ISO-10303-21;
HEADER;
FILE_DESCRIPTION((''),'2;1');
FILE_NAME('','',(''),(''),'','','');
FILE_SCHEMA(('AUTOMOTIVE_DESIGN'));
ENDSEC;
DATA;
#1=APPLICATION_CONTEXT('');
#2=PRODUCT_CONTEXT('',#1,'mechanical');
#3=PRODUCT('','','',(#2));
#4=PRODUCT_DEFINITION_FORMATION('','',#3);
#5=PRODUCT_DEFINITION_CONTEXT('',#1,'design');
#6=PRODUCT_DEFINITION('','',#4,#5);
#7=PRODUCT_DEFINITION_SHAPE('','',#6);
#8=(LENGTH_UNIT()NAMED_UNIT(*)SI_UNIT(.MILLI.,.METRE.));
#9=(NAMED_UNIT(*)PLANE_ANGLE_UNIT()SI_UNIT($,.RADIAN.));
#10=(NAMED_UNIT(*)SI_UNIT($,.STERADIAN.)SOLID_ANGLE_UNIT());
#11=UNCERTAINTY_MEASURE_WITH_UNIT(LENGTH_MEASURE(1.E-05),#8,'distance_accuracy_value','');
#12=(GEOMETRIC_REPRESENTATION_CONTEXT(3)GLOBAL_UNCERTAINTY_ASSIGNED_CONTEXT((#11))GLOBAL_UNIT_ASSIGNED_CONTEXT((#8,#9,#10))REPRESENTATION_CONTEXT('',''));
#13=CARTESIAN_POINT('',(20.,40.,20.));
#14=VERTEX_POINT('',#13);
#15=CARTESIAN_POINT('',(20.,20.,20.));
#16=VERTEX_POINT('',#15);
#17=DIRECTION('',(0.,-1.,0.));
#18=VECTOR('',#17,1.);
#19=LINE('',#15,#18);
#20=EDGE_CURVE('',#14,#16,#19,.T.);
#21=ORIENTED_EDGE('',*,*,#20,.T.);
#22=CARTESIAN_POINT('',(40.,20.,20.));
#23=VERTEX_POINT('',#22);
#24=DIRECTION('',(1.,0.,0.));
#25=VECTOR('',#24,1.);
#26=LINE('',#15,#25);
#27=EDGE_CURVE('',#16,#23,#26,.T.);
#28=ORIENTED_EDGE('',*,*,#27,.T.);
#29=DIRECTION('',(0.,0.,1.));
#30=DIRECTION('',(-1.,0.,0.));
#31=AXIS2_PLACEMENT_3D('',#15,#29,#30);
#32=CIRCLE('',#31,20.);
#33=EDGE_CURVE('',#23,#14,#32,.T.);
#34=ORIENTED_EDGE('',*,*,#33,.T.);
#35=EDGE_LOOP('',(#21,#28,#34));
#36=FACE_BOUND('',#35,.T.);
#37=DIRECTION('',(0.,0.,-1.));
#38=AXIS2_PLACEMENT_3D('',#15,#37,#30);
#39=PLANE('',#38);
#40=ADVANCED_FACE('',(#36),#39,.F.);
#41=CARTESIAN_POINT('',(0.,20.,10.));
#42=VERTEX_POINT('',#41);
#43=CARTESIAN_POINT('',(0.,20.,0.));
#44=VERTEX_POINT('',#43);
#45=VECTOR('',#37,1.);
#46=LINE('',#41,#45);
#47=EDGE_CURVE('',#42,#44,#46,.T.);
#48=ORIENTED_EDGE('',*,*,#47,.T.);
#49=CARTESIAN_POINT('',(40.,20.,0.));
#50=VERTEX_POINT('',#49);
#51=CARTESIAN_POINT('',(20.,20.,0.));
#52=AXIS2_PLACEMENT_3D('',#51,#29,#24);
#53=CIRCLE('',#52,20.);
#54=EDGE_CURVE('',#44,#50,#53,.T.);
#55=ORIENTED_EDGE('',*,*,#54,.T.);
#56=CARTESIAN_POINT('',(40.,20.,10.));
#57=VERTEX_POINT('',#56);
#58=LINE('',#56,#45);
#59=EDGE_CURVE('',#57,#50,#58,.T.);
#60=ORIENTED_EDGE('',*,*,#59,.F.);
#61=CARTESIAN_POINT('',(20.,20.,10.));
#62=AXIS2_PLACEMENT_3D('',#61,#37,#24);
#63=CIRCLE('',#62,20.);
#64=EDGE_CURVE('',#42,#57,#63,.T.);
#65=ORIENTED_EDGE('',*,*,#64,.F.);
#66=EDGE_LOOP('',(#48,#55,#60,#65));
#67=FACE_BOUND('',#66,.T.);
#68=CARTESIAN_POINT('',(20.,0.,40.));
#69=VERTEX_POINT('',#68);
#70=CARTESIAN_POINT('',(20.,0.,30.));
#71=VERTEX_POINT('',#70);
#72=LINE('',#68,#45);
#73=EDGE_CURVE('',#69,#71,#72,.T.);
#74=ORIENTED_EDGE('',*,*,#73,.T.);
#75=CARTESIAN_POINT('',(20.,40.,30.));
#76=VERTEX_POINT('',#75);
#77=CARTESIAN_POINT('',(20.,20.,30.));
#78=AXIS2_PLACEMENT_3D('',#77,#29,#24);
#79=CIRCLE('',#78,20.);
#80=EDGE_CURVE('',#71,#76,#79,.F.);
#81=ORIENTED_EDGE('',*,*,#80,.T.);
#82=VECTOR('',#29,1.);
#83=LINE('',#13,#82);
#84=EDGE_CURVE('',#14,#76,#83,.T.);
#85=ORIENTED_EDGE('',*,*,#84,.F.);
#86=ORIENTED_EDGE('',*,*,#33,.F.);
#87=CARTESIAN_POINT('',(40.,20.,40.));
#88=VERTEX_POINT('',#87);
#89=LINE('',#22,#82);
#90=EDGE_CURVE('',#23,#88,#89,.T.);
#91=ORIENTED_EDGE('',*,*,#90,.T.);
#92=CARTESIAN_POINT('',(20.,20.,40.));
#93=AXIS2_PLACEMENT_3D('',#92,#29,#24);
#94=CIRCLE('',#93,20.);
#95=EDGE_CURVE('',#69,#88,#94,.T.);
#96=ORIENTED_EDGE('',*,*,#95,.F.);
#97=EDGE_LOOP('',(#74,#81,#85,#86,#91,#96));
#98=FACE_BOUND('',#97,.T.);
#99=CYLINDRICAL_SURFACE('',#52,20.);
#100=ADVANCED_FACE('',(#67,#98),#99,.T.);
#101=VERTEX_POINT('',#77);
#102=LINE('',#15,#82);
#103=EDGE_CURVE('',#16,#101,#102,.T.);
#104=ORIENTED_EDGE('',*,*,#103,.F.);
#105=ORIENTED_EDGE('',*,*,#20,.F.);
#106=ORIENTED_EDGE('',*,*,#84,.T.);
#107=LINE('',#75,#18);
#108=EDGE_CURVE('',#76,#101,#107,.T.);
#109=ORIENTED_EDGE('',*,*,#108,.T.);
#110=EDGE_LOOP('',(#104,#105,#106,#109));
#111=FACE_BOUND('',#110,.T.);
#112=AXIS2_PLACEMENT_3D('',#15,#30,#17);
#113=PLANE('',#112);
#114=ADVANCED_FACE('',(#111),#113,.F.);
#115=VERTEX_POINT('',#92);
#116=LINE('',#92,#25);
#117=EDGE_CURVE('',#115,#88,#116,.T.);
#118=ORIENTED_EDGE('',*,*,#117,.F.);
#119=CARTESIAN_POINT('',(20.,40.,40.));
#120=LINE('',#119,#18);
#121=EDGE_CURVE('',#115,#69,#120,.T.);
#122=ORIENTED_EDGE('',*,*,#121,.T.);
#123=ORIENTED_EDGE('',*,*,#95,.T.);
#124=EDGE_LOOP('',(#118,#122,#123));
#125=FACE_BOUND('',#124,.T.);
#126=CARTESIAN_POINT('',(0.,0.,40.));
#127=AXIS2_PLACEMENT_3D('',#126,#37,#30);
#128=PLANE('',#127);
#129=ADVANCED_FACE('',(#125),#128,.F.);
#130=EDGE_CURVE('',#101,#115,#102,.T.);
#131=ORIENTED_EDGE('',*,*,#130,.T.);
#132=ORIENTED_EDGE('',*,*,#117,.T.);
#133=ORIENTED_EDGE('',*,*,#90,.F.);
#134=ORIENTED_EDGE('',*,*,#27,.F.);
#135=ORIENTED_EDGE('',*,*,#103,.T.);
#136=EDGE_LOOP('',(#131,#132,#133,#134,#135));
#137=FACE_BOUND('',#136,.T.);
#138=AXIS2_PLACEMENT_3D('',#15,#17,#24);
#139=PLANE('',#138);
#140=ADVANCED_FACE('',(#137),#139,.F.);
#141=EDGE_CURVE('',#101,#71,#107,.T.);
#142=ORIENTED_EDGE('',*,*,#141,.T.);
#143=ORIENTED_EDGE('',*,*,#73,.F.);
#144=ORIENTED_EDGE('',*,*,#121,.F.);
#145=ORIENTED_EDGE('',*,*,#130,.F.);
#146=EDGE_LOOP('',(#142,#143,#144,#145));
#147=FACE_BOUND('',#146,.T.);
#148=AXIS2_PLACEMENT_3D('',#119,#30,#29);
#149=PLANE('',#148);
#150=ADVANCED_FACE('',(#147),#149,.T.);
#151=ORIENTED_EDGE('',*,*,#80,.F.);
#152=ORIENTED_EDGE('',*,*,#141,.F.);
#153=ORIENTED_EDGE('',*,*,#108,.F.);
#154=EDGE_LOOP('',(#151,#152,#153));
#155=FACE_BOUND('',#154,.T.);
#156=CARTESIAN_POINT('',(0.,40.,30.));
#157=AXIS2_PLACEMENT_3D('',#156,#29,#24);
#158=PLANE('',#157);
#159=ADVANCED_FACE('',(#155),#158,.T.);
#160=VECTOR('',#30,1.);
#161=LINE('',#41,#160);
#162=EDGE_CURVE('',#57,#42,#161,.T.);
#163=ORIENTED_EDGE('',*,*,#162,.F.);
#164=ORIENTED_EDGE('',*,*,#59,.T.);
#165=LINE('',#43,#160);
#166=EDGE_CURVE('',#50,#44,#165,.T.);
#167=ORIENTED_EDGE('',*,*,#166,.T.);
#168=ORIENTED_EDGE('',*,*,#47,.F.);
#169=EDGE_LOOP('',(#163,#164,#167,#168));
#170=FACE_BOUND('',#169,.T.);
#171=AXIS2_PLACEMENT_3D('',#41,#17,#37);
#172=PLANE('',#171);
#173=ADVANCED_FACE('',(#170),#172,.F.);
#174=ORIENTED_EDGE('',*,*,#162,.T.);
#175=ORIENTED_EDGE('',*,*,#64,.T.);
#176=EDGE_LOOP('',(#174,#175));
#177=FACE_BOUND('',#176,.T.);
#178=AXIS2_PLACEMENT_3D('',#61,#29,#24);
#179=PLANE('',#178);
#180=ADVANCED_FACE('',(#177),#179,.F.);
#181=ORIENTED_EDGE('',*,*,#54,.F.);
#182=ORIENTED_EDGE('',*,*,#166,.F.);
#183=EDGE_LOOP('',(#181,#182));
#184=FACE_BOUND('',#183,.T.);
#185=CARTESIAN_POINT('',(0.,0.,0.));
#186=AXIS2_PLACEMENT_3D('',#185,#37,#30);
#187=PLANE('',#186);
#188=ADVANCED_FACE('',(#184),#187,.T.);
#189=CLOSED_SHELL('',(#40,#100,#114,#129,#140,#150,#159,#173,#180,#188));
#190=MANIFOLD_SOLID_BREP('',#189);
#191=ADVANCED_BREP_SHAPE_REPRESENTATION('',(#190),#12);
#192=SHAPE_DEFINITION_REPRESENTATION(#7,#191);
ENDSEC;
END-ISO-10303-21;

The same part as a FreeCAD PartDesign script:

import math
import FreeCAD as App
import Part
import Sketcher
from FreeCAD import Vector

doc = App.newDocument("Part")
params = doc.addObject("Spreadsheet::Sheet", "Params")
for row, (alias, value) in enumerate([
    ("sketch1_width", "40 mm"),
    ("pad1_length", "40 mm"),
    ("sketch2_radius", "20 mm"),
    ("pocket1_length", "40 mm"),
    ("sketch3_width", "20 mm"),
    ("sketch3_height", "10 mm"),
    ("pocket2_length", "40 mm"),
    ("sketch4_radius", "20 mm"),
    ("pocket3_length", "20 mm"),
    ("sketch5_radius", "20 mm"),
    ("pocket4_length", "10 mm"),
], start=1):
    params.set(f"A{row}", alias)
    params.set(f"B{row}", "=" + value)
    params.setAlias(f"B{row}", alias)

body = doc.addObject("PartDesign::Body", "Body")

sketch1 = doc.addObject("Sketcher::SketchObject", "Sketch")
body.addObject(sketch1)
sketch1.AttachmentSupport = (doc.XY_Plane, [""])
sketch1.MapMode = "FlatFace"
sketch1.addGeometry(Part.LineSegment(Vector(0, 40, 0), Vector(0, 0, 0)), False)
sketch1.addGeometry(Part.LineSegment(Vector(0, 0, 0), Vector(40, 0, 0)), False)
sketch1.addGeometry(Part.LineSegment(Vector(40, 0, 0), Vector(40, 40, 0)), False)
sketch1.addGeometry(Part.LineSegment(Vector(40, 40, 0), Vector(0, 40, 0)), False)
sketch1.addConstraint(Sketcher.Constraint("Coincident", 0, 2, 1, 1))
sketch1.addConstraint(Sketcher.Constraint("Coincident", 1, 2, 2, 1))
sketch1.addConstraint(Sketcher.Constraint("Coincident", 2, 2, 3, 1))
sketch1.addConstraint(Sketcher.Constraint("Coincident", 3, 2, 0, 1))
sketch1.addConstraint(Sketcher.Constraint("Vertical", 0))
sketch1.addConstraint(Sketcher.Constraint("Horizontal", 1))
sketch1.addConstraint(Sketcher.Constraint("Vertical", 2))
sketch1.addConstraint(Sketcher.Constraint("Horizontal", 3))
sketch1.addConstraint(Sketcher.Constraint("Coincident", 0, 2, -1, 1))
sketch1.addConstraint(Sketcher.Constraint("Equal", 3, 0))
sketch1.addConstraint(Sketcher.Constraint("DistanceX", 1, 1, 1, 2, 40.0))
sketch1.setExpression("Constraints[10]", "Params.sketch1_width")
pad1 = doc.addObject("PartDesign::Pad", "Pad")
body.addObject(pad1)
pad1.Profile = sketch1
pad1.setExpression("Length", "Params.pad1_length")

sketch2 = doc.addObject("Sketcher::SketchObject", "Sketch001")
body.addObject(sketch2)
sketch2.AttachmentSupport = (doc.XY_Plane, [""])
sketch2.MapMode = "FlatFace"
sketch2.AttachmentOffset = App.Placement(Vector(0, 0, 40), App.Rotation())
sketch2.addGeometry(Part.LineSegment(Vector(20, 40, 0), Vector(0, 40, 0)), False)
sketch2.addGeometry(Part.LineSegment(Vector(0, 40, 0), Vector(0, 20, 0)), False)
sketch2.addGeometry(Part.ArcOfCircle(Part.Circle(Vector(20, 20, 0), Vector(0, 0, 1), 20), math.radians(90), math.radians(180)), False)
sketch2.addGeometry(Part.ArcOfCircle(Part.Circle(Vector(20, 20, 0), Vector(0, 0, 1), 20), math.radians(180), math.radians(270)), False)
sketch2.addGeometry(Part.LineSegment(Vector(0, 20, 0), Vector(0, 0, 0)), False)
sketch2.addGeometry(Part.LineSegment(Vector(0, 0, 0), Vector(20, 0, 0)), False)
sketch2.addGeometry(Part.LineSegment(Vector(40, 0, 0), Vector(40, 20, 0)), False)
sketch2.addGeometry(Part.ArcOfCircle(Part.Circle(Vector(20, 20, 0), Vector(0, 0, 1), 20), math.radians(-90), math.radians(0)), False)
sketch2.addGeometry(Part.LineSegment(Vector(20, 0, 0), Vector(40, 0, 0)), False)
sketch2.addGeometry(Part.LineSegment(Vector(40, 40, 0), Vector(20, 40, 0)), False)
sketch2.addGeometry(Part.ArcOfCircle(Part.Circle(Vector(20, 20, 0), Vector(0, 0, 1), 20), math.radians(0), math.radians(90)), False)
sketch2.addGeometry(Part.LineSegment(Vector(40, 20, 0), Vector(40, 40, 0)), False)
sketch2.addConstraint(Sketcher.Constraint("Coincident", 0, 2, 1, 1))
sketch2.addConstraint(Sketcher.Constraint("Tangent", 1, 2, 2, 2))
sketch2.addConstraint(Sketcher.Constraint("Tangent", 2, 1, 0, 1))
sketch2.addConstraint(Sketcher.Constraint("Tangent", 3, 1, 4, 1))
sketch2.addConstraint(Sketcher.Constraint("Coincident", 4, 2, 5, 1))
sketch2.addConstraint(Sketcher.Constraint("Tangent", 5, 2, 3, 2))
sketch2.addConstraint(Sketcher.Constraint("Tangent", 6, 2, 7, 2))
sketch2.addConstraint(Sketcher.Constraint("Tangent", 7, 1, 8, 1))
sketch2.addConstraint(Sketcher.Constraint("Coincident", 8, 2, 6, 1))
sketch2.addConstraint(Sketcher.Constraint("Tangent", 9, 2, 10, 2))
sketch2.addConstraint(Sketcher.Constraint("Tangent", 10, 1, 11, 1))
sketch2.addConstraint(Sketcher.Constraint("Coincident", 11, 2, 9, 1))
sketch2.addConstraint(Sketcher.Constraint("Horizontal", 0))
sketch2.addConstraint(Sketcher.Constraint("Vertical", 1))
sketch2.addConstraint(Sketcher.Constraint("Vertical", 4))
sketch2.addConstraint(Sketcher.Constraint("Horizontal", 5))
sketch2.addConstraint(Sketcher.Constraint("Vertical", 6))
sketch2.addConstraint(Sketcher.Constraint("Horizontal", 8))
sketch2.addConstraint(Sketcher.Constraint("Horizontal", 9))
sketch2.addConstraint(Sketcher.Constraint("Vertical", 11))
sketch2.addConstraint(Sketcher.Constraint("Coincident", 4, 2, -1, 1))
sketch2.addConstraint(Sketcher.Constraint("Coincident", 3, 3, 2, 3))
sketch2.addConstraint(Sketcher.Constraint("Coincident", 7, 3, 2, 3))
sketch2.addConstraint(Sketcher.Constraint("Coincident", 10, 3, 2, 3))
sketch2.addConstraint(Sketcher.Constraint("Equal", 2, 3))
sketch2.addConstraint(Sketcher.Constraint("Equal", 3, 7))
sketch2.addConstraint(Sketcher.Constraint("Equal", 7, 10))
sketch2.addConstraint(Sketcher.Constraint("Radius", 2, 20.0))
sketch2.setExpression("Constraints[27]", "Params.sketch2_radius")
pocket1 = doc.addObject("PartDesign::Pocket", "Pocket")
body.addObject(pocket1)
pocket1.Profile = sketch2
pocket1.setExpression("Length", "Params.pocket1_length")

sketch3 = doc.addObject("Sketcher::SketchObject", "Sketch002")
body.addObject(sketch3)
sketch3.AttachmentSupport = (doc.XZ_Plane, [""])
sketch3.MapMode = "FlatFace"
sketch3.addGeometry(Part.LineSegment(Vector(0, 30, 0), Vector(0, 40, 0)), False)
sketch3.addGeometry(Part.LineSegment(Vector(0, 40, 0), Vector(20, 40, 0)), False)
sketch3.addGeometry(Part.LineSegment(Vector(20, 40, 0), Vector(20, 30, 0)), False)
sketch3.addGeometry(Part.LineSegment(Vector(20, 30, 0), Vector(0, 30, 0)), False)
sketch3.addConstraint(Sketcher.Constraint("Coincident", 0, 2, 1, 1))
sketch3.addConstraint(Sketcher.Constraint("Coincident", 1, 2, 2, 1))
sketch3.addConstraint(Sketcher.Constraint("Coincident", 2, 2, 3, 1))
sketch3.addConstraint(Sketcher.Constraint("Coincident", 3, 2, 0, 1))
sketch3.addConstraint(Sketcher.Constraint("Vertical", 0))
sketch3.addConstraint(Sketcher.Constraint("Horizontal", 1))
sketch3.addConstraint(Sketcher.Constraint("Vertical", 2))
sketch3.addConstraint(Sketcher.Constraint("Horizontal", 3))
sketch3.addConstraint(Sketcher.Constraint("PointOnObject", 0, 2, -2))
sketch3.addConstraint(Sketcher.Constraint("DistanceX", 1, 1, 1, 2, 20.0))
sketch3.addConstraint(Sketcher.Constraint("DistanceY", 0, 1, 0, 2, 10.0))
sketch3.addConstraint(Sketcher.Constraint("DistanceY", -1, 1, 0, 2, 40.0))
sketch3.setExpression("Constraints[9]", "Params.sketch3_width")
sketch3.setExpression("Constraints[10]", "Params.sketch3_height")
pocket2 = doc.addObject("PartDesign::Pocket", "Pocket001")
body.addObject(pocket2)
pocket2.Profile = sketch3
pocket2.setExpression("Length", "Params.pocket2_length")

sketch4 = doc.addObject("Sketcher::SketchObject", "Sketch003")
body.addObject(sketch4)
sketch4.AttachmentSupport = (doc.XY_Plane, [""])
sketch4.MapMode = "FlatFace"
sketch4.AttachmentOffset = App.Placement(Vector(0, 0, 40), App.Rotation())
sketch4.addGeometry(Part.LineSegment(Vector(20, 40, 0), Vector(20, 20, 0)), False)
sketch4.addGeometry(Part.LineSegment(Vector(20, 20, 0), Vector(40, 20, 0)), False)
sketch4.addGeometry(Part.ArcOfCircle(Part.Circle(Vector(20, 20, 0), Vector(0, 0, 1), 20), math.radians(0), math.radians(90)), False)
sketch4.addConstraint(Sketcher.Constraint("Coincident", 0, 2, 1, 1))
sketch4.addConstraint(Sketcher.Constraint("Coincident", 1, 2, 2, 1))
sketch4.addConstraint(Sketcher.Constraint("Coincident", 2, 2, 0, 1))
sketch4.addConstraint(Sketcher.Constraint("Vertical", 0))
sketch4.addConstraint(Sketcher.Constraint("Horizontal", 1))
sketch4.addConstraint(Sketcher.Constraint("Coincident", 0, 2, 2, 3))
sketch4.addConstraint(Sketcher.Constraint("Radius", 2, 20.0))
sketch4.addConstraint(Sketcher.Constraint("DistanceX", -1, 1, 2, 3, 20.0))
sketch4.addConstraint(Sketcher.Constraint("DistanceY", -1, 1, 2, 3, 20.0))
sketch4.setExpression("Constraints[6]", "Params.sketch4_radius")
pocket3 = doc.addObject("PartDesign::Pocket", "Pocket002")
body.addObject(pocket3)
pocket3.Profile = sketch4
pocket3.setExpression("Length", "Params.pocket3_length")

sketch5 = doc.addObject("Sketcher::SketchObject", "Sketch004")
body.addObject(sketch5)
sketch5.AttachmentSupport = (doc.XY_Plane, [""])
sketch5.MapMode = "FlatFace"
sketch5.addGeometry(Part.LineSegment(Vector(40, 20, 0), Vector(0, 20, 0)), False)
sketch5.addGeometry(Part.ArcOfCircle(Part.Circle(Vector(20, 20, 0), Vector(0, 0, 1), 20), math.radians(0), math.radians(180)), False)
sketch5.addConstraint(Sketcher.Constraint("Coincident", 0, 1, 1, 1))
sketch5.addConstraint(Sketcher.Constraint("Coincident", 1, 2, 0, 2))
sketch5.addConstraint(Sketcher.Constraint("Horizontal", 0))
sketch5.addConstraint(Sketcher.Constraint("PointOnObject", 1, 2, -2))
sketch5.addConstraint(Sketcher.Constraint("Horizontal", 1, 3, 0, 1))
sketch5.addConstraint(Sketcher.Constraint("Radius", 1, 20.0))
sketch5.addConstraint(Sketcher.Constraint("DistanceY", -1, 1, 1, 3, 20.0))
sketch5.setExpression("Constraints[5]", "Params.sketch5_radius")
pocket4 = doc.addObject("PartDesign::Pocket", "Pocket003")
body.addObject(pocket4)
pocket4.Profile = sketch5
pocket4.setExpression("Length", "Params.pocket4_length")
pocket4.Reversed = True

doc.recompute()
